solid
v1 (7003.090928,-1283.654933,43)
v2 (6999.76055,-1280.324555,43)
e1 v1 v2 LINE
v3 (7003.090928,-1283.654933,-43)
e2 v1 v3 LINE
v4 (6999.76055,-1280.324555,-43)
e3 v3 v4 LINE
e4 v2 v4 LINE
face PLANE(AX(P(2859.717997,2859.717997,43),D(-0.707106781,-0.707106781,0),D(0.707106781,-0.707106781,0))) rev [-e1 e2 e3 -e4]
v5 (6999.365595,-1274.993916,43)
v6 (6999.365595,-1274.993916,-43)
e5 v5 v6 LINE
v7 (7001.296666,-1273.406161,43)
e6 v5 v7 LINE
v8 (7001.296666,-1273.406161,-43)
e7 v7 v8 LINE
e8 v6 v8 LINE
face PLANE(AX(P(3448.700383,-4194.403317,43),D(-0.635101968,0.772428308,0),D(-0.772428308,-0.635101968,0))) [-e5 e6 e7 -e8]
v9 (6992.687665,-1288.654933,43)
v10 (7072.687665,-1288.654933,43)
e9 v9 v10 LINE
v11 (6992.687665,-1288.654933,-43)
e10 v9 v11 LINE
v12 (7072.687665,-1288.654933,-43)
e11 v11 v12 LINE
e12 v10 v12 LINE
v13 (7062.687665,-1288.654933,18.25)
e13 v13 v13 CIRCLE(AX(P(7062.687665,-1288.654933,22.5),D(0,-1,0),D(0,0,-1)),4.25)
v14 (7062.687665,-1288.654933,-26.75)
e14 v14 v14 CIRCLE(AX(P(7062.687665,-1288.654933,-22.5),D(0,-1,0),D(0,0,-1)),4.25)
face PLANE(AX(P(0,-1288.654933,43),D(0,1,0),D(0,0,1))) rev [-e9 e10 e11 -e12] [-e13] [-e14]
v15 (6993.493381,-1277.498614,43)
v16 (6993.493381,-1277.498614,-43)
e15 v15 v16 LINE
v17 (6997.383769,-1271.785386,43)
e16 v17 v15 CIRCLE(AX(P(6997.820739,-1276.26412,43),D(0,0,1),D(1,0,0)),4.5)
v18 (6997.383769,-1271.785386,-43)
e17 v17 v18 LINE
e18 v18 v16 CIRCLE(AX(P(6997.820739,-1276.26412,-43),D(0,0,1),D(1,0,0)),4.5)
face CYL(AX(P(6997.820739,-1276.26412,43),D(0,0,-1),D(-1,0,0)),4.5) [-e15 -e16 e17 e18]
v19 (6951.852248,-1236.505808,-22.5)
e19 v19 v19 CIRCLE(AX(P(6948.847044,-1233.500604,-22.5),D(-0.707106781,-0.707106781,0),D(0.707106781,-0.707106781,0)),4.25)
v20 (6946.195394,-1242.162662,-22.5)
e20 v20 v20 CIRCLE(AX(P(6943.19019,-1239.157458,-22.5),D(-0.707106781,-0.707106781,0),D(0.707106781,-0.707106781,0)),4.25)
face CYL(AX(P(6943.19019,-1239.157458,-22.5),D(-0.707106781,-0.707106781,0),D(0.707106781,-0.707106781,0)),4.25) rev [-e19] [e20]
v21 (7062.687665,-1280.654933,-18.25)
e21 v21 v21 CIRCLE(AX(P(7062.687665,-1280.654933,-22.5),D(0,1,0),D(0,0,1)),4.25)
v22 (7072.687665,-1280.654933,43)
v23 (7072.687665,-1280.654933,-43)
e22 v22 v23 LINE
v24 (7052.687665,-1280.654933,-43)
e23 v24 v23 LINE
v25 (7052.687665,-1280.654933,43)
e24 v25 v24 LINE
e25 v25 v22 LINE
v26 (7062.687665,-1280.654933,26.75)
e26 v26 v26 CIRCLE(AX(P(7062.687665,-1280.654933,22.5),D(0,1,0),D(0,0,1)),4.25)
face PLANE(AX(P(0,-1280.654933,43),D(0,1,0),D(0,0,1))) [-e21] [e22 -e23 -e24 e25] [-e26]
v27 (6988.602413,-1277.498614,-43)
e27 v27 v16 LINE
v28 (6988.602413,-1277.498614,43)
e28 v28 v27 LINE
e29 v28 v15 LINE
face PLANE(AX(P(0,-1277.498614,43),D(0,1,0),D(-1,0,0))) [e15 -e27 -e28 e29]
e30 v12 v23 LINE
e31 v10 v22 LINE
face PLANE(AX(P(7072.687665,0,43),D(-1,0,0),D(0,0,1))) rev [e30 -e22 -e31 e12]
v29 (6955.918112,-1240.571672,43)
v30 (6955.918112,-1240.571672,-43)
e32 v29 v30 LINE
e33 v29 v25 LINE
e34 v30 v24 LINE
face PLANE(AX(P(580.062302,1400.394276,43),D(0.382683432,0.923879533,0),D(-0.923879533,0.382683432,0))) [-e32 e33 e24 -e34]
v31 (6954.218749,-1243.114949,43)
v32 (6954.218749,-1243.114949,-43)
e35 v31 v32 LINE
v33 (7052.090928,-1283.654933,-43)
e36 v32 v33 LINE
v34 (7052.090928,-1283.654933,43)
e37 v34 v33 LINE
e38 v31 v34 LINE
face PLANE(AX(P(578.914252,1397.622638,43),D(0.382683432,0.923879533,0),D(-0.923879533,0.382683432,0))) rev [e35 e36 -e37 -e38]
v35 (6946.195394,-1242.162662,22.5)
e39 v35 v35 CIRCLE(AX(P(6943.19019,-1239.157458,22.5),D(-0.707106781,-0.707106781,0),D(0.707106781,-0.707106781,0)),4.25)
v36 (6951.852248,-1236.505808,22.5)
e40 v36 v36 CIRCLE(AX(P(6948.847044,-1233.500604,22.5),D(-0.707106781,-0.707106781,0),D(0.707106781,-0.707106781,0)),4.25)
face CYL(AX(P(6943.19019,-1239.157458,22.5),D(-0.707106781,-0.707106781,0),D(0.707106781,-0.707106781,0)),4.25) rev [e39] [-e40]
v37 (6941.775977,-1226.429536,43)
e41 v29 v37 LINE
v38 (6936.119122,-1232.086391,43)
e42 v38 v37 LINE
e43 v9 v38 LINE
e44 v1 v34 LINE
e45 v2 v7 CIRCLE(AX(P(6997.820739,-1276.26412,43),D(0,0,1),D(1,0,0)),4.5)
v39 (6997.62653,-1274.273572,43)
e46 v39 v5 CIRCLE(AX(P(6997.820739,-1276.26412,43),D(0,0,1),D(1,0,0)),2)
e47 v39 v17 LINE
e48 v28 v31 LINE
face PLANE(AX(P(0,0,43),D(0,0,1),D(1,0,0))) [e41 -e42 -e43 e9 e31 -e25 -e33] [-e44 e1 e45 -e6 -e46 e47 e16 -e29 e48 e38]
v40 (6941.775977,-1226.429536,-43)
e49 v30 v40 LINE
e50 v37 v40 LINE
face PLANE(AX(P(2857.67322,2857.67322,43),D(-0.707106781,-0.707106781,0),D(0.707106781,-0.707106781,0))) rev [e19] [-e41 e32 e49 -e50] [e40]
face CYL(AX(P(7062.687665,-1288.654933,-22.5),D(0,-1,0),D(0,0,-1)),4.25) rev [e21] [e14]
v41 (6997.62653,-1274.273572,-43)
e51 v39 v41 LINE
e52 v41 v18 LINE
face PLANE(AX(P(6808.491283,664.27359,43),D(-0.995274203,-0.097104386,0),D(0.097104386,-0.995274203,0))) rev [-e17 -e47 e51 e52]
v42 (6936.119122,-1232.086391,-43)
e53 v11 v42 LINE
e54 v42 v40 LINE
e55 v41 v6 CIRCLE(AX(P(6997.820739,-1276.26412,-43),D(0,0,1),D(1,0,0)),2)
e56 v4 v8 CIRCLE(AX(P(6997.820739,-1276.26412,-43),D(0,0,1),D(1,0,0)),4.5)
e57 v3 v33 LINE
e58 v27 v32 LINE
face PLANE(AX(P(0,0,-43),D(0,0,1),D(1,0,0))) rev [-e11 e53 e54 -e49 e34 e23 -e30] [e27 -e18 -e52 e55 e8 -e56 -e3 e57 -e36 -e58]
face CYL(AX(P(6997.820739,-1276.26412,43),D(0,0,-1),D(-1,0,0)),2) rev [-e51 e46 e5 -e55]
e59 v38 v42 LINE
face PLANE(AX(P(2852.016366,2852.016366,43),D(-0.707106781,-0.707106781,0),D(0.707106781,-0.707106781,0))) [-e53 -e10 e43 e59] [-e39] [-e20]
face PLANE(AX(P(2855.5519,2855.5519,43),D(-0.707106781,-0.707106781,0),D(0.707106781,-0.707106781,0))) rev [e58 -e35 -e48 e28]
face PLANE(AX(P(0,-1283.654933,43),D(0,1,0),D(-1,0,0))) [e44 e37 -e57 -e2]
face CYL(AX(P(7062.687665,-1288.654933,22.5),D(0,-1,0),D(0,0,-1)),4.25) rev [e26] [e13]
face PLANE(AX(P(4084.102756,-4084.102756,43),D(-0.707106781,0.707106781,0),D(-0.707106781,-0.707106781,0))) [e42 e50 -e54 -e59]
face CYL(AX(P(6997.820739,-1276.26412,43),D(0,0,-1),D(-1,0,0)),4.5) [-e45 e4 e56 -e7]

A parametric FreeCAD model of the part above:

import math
import FreeCAD as App
import Part
import Sketcher
from FreeCAD import Vector
Q = App.Units.Quantity


def add_polygon(sketch, points):
    """Adds a closed chain of lines whose ends are joined by coincident constraints."""
    first, n = sketch.GeometryCount, len(points)
    for a, b in zip(points, points[1:] + points[:1]):
        sketch.addGeometry(Part.LineSegment(App.Vector(*a, 0), App.Vector(*b, 0)), False)
    for i in range(n):
        sketch.addConstraint(Sketcher.Constraint("Coincident", first + i, 2, first + (i + 1) % n, 1))

doc = App.newDocument("Part")
body = doc.addObject("PartDesign::Body", "Body")

# Sketch on XY plane
sketch1 = body.newObject("Sketcher::SketchObject", "Sketch")
sketch1.AttachmentSupport = (doc.getObject("XY_Plane"), [""])
sketch1.MapMode = "FlatFace"
add_polygon(sketch1, [(6936.1, -1232.1), (6992.7, -1288.7), (7072.7, -1288.7), (7072.7, -1280.7), (7052.7, -1280.7), (6955.9, -1240.6), (6941.8, -1226.4)])  # lines 0-6
sketch1.addGeometry(Part.LineSegment(Vector(7052.1, -1283.7, 0), Vector(7003.1, -1283.7, 0)), False)  # 7
sketch1.addGeometry(Part.LineSegment(Vector(7003.1, -1283.7, 0), Vector(6999.8, -1280.3, 0)), False)  # 8
sketch1.addGeometry(Part.ArcOfCircle(Part.Circle(Vector(6997.8, -1276.3, 0), Vector(0, 0, 1), 4.5), math.radians(-64), math.radians(39)), False)  # 9
sketch1.addGeometry(Part.LineSegment(Vector(7001.3, -1273.4, 0), Vector(6999.4, -1275, 0)), False)  # 10
sketch1.addGeometry(Part.ArcOfCircle(Part.Circle(Vector(6997.8, -1276.3, 0), Vector(0, 0, 1), 2), math.radians(96), math.radians(399)), False)  # 11
sketch1.addGeometry(Part.LineSegment(Vector(6997.6, -1274.3, 0), Vector(6997.4, -1271.8, 0)), False)  # 12
sketch1.addGeometry(Part.ArcOfCircle(Part.Circle(Vector(6997.8, -1276.3, 0), Vector(0, 0, 1), 4.5), math.radians(96), math.radians(196)), False)  # 13
sketch1.addGeometry(Part.LineSegment(Vector(6993.5, -1277.5, 0), Vector(6988.6, -1277.5, 0)), False)  # 14
sketch1.addGeometry(Part.LineSegment(Vector(6988.6, -1277.5, 0), Vector(6954.2, -1243.1, 0)), False)  # 15
sketch1.addGeometry(Part.LineSegment(Vector(6954.2, -1243.1, 0), Vector(7052.1, -1283.7, 0)), False)  # 16
sketch1.addConstraint(Sketcher.Constraint("Coincident", 7, 2, 8, 1))
sketch1.addConstraint(Sketcher.Constraint("Coincident", 8, 2, 9, 1))
sketch1.addConstraint(Sketcher.Constraint("Coincident", 9, 2, 10, 1))
sketch1.addConstraint(Sketcher.Constraint("Coincident", 10, 2, 11, 2))
sketch1.addConstraint(Sketcher.Constraint("Coincident", 11, 1, 12, 1))
sketch1.addConstraint(Sketcher.Constraint("Coincident", 12, 2, 13, 1))
sketch1.addConstraint(Sketcher.Constraint("Coincident", 13, 2, 14, 1))
sketch1.addConstraint(Sketcher.Constraint("Coincident", 14, 2, 15, 1))
sketch1.addConstraint(Sketcher.Constraint("Coincident", 15, 2, 16, 1))
sketch1.addConstraint(Sketcher.Constraint("Coincident", 16, 2, 7, 1))
sketch1.addConstraint(Sketcher.Constraint("Horizontal", 1))
sketch1.addConstraint(Sketcher.Constraint("Vertical", 2))
sketch1.addConstraint(Sketcher.Constraint("Horizontal", 3))
sketch1.addConstraint(Sketcher.Constraint("Horizontal", 7))
sketch1.addConstraint(Sketcher.Constraint("Horizontal", 14))
sketch1.addConstraint(Sketcher.Constraint("Coincident", 11, 3, 9, 3))
sketch1.addConstraint(Sketcher.Constraint("Coincident", 13, 3, 9, 3))
sketch1.addConstraint(Sketcher.Constraint("Equal", 9, 13))
sketch1.addConstraint(Sketcher.Constraint("Parallel", 0, 5))
sketch1.addConstraint(Sketcher.Constraint("Perpendicular", 5, 6))
sketch1.addConstraint(Sketcher.Constraint("Perpendicular", 6, 8))
sketch1.addConstraint(Sketcher.Constraint("Parallel", 8, 15))
sketch1.addConstraint(Sketcher.Constraint("Parallel", 4, 16))
sketch1.addConstraint(Sketcher.Constraint("Radius", 11, Q("2 mm")))
sketch1.addConstraint(Sketcher.Constraint("Radius", 9, Q("4.5 mm")))
sketch1.addConstraint(Sketcher.Constraint("DistanceX", 1, 1, 1, 2, Q("80 mm")))
sketch1.addConstraint(Sketcher.Constraint("DistanceX", 3, 2, 3, 1, Q("20 mm")))
sketch1.addConstraint(Sketcher.Constraint("DistanceX", 7, 2, 7, 1, Q("49 mm")))
sketch1.addConstraint(Sketcher.Constraint("DistanceY", 2, 1, 2, 2, Q("8 mm")))
sketch1.addConstraint(Sketcher.Constraint("Angle", 0, Q("-45 deg")))
sketch1.addConstraint(Sketcher.Constraint("Distance", 0, Q("80 mm")))
sketch1.addConstraint(Sketcher.Constraint("Distance", 5, Q("20 mm")))
sketch1.addConstraint(Sketcher.Constraint("Distance", 6, Q("8 mm")))
sketch1.addConstraint(Sketcher.Constraint("DistanceY", 0, 2, 7, 2, Q("5 mm")))
sketch1.addConstraint(Sketcher.Constraint("DistanceX", 14, 2, 14, 1, Q("4.890968 mm")))
sketch1.addConstraint(Sketcher.Constraint("DistanceX", -1, 1, 9, 3, Q("6997.820739 mm")))
sketch1.addConstraint(Sketcher.Constraint("DistanceY", 9, 3, -1, 1, Q("1276.26412 mm")))
sketch1.addConstraint(Sketcher.Constraint("DistanceY", 6, 2, -1, 1, Q("1232.086391 mm")))
sketch1.addConstraint(Sketcher.Constraint("DistanceX", -1, 1, 8, 2, Q("6999.76055 mm")))
sketch1.addConstraint(Sketcher.Constraint("DistanceY", 9, 2, -1, 1, Q("1273.406161 mm")))
sketch1.addConstraint(Sketcher.Constraint("DistanceX", -1, 1, 11, 1, Q("6997.62653 mm")))
sketch1.addConstraint(Sketcher.Constraint("DistanceX", -1, 1, 12, 2, Q("6997.383769 mm")))
sketch1.addConstraint(Sketcher.Constraint("DistanceX", -1, 1, 13, 2, Q("6993.493381 mm")))
sketch1.addConstraint(Sketcher.Constraint("DistanceX", 10, 2, 9, 2, Q("1.931071 mm")))
sketch1.addConstraint(Sketcher.Constraint("DistanceX", -1, 1, 0, 2, Q("6992.687665 mm")))
pad1 = body.newObject("PartDesign::Pad", "Pad")
pad1.Profile = sketch1
pad1.Length = 86
pad1.Midplane = True

# Sketch on an angled plane
sketch2 = body.newObject("Sketcher::SketchObject", "Sketch001")
sketch2.Placement = App.Placement(Vector(2852.016366, 2852.016366, 0), App.Rotation(Vector(0.707106781, -0.707106781, 0), Vector(0, 0, 0.999999999), Vector(-0.707106781, -0.707106781, 0), "ZXY"))
sketch2.addGeometry(Part.Circle(Vector(5785.8, -22.5, 0), Vector(0, 0, 1), 4.2), False)
sketch2.addGeometry(Part.Circle(Vector(5785.8, 22.5, 0), Vector(0, 0, 1), 4.2), False)
sketch2.addConstraint(Sketcher.Constraint("Equal", 0, 1))
sketch2.addConstraint(Sketcher.Constraint("Symmetric", 0, 3, 1, 3, -1))
sketch2.addConstraint(Sketcher.Constraint("Diameter", 0, Q("8.5 mm")))
sketch2.addConstraint(Sketcher.Constraint("DistanceY", 0, 3, 1, 3, Q("45 mm")))
sketch2.addConstraint(Sketcher.Constraint("DistanceX", -1, 1, 0, 3, Q("5785.793505 mm")))
doc.recompute()
hole = body.newObject("PartDesign::Hole", "Hole")
hole.Profile = sketch2
hole.ThreadType = "None"
hole.Diameter = 8.5
hole.DepthType = "ThroughAll"
doc.recompute()

datumplane = body.newObject("PartDesign::Plane", "DatumPlane")
datumplane.Placement = App.Placement(Vector(6424.240592, -2661.007577, 0), App.Rotation(Vector(0.382683432, 0.923879533, 0), Vector(0, 0, -1), Vector(-0.923879533, 0.382683432, 0), "ZXY"))
mirrored = body.newObject("PartDesign::Mirrored", "Mirrored")
mirrored.Originals = [hole]
mirrored.MirrorPlane = (datumplane, [""])
body.Tip = mirrored

doc.recompute()
